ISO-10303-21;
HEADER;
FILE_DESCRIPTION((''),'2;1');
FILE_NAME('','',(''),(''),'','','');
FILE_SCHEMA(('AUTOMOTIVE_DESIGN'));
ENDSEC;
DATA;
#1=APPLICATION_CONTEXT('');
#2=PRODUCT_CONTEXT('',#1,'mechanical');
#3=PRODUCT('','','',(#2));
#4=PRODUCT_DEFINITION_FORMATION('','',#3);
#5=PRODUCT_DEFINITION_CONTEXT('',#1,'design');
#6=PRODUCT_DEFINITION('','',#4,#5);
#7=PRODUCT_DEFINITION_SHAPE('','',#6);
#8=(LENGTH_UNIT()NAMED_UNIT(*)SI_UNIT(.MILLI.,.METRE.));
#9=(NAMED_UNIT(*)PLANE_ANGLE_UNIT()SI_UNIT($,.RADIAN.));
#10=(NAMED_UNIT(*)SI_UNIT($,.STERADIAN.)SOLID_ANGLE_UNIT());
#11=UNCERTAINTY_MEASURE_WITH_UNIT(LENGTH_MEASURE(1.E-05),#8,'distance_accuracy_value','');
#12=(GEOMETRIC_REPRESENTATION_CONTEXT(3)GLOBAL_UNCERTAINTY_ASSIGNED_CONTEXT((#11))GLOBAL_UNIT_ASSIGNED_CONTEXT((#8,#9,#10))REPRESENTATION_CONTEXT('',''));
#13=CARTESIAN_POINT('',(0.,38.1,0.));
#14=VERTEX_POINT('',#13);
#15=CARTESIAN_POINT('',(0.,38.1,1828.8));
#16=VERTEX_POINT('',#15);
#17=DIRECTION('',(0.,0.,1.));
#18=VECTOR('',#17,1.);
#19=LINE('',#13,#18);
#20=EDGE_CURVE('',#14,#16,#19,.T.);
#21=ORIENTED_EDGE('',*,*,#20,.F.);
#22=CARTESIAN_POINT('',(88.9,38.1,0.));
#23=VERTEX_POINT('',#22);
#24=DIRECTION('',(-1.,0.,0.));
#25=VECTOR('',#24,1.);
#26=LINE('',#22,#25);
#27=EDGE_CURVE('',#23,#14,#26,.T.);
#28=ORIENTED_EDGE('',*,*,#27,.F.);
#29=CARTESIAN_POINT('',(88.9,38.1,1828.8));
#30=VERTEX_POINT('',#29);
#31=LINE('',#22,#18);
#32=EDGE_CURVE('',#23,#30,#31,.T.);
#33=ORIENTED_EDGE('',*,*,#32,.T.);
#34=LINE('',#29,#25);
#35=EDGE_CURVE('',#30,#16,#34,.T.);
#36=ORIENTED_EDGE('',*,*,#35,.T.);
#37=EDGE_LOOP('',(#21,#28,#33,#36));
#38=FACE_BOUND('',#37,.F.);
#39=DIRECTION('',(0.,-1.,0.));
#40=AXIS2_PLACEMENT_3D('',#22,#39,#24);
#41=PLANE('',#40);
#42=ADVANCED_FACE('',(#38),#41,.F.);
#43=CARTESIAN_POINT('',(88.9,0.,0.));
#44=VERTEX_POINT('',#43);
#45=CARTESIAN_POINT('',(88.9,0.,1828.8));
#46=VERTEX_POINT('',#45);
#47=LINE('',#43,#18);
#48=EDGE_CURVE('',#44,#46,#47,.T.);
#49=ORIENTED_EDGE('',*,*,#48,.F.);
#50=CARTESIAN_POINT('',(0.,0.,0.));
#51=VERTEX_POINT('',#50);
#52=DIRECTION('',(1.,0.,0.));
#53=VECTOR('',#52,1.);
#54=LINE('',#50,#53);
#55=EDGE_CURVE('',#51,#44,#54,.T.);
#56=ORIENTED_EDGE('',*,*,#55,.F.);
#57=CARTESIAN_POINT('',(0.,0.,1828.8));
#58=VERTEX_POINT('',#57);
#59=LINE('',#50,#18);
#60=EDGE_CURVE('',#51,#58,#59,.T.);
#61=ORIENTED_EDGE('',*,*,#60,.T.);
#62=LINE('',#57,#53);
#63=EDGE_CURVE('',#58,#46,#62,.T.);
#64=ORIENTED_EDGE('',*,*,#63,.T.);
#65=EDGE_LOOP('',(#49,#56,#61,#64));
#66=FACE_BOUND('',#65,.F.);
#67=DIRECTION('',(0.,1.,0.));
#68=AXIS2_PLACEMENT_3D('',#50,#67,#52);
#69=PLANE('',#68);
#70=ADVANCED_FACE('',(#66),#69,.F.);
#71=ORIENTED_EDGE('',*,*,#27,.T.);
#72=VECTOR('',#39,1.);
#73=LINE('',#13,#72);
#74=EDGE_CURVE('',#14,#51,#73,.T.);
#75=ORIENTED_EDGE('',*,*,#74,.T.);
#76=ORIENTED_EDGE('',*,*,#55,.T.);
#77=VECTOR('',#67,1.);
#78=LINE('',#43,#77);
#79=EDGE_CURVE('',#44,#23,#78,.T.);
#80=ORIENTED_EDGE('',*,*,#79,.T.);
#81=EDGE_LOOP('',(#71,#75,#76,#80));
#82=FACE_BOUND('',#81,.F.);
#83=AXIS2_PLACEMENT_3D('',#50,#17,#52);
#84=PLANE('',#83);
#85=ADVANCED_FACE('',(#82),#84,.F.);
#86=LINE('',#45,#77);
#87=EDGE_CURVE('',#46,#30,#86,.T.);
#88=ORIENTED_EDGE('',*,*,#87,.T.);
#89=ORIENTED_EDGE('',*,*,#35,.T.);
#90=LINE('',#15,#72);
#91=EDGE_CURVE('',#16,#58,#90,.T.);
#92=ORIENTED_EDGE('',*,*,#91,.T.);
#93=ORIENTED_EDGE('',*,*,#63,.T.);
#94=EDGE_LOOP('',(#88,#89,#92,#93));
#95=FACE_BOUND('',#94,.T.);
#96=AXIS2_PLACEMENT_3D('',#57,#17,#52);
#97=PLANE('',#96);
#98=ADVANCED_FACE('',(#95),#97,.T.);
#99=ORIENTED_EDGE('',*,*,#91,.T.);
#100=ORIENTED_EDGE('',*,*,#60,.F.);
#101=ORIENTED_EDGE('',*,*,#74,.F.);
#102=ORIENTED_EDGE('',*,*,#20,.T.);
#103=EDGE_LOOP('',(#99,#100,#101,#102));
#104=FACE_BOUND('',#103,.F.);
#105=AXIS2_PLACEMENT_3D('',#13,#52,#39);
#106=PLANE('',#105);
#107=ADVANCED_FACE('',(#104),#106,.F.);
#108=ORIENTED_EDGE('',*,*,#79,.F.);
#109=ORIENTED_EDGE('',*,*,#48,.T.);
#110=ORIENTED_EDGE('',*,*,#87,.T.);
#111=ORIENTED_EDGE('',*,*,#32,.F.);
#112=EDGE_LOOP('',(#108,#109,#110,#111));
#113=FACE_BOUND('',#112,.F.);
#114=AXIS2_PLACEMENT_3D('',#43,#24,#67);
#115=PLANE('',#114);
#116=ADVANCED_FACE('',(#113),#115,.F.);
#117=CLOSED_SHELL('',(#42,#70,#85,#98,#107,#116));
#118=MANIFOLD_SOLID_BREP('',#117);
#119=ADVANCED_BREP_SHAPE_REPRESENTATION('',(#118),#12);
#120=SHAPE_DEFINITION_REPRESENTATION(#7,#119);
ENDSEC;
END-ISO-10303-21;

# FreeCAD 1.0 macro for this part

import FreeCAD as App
import Part
import Sketcher

V = App.Vector
Q = App.Units.Quantity

doc = App.newDocument("Part")
body = doc.addObject("PartDesign::Body", "Body")

sketch1 = doc.addObject("Sketcher::SketchObject", "Sketch")
body.addObject(sketch1)
sketch1.AttachmentSupport = (doc.XY_Plane, [""])
sketch1.MapMode = "FlatFace"
sketch1.addGeometry([
    Part.LineSegment(V(0, 38, 0), V(0, 0, 0)),
    Part.LineSegment(V(0, 0, 0), V(89, 0, 0)),
    Part.LineSegment(V(89, 0, 0), V(89, 38, 0)),
    Part.LineSegment(V(89, 38, 0), V(0, 38, 0)),
], False)
sketch1.addConstraint([
    Sketcher.Constraint("Coincident", 0, 2, 1, 1),
    Sketcher.Constraint("Coincident", 1, 2, 2, 1),
    Sketcher.Constraint("Coincident", 2, 2, 3, 1),
    Sketcher.Constraint("Coincident", 3, 2, 0, 1),
    Sketcher.Constraint("Vertical", 0),
    Sketcher.Constraint("Horizontal", 1),
    Sketcher.Constraint("Vertical", 2),
    Sketcher.Constraint("Horizontal", 3),
    Sketcher.Constraint("Coincident", 0, 2, -1, 1),
    Sketcher.Constraint("DistanceX", 1, 1, 1, 2, Q("3.5 in")),
    Sketcher.Constraint("DistanceY", 0, 2, 0, 1, Q("1.5 in")),
])
pad1 = doc.addObject("PartDesign::Pad", "Pad")
body.addObject(pad1)
pad1.Profile = sketch1
pad1.Length = Q("72 in")

doc.recompute()
